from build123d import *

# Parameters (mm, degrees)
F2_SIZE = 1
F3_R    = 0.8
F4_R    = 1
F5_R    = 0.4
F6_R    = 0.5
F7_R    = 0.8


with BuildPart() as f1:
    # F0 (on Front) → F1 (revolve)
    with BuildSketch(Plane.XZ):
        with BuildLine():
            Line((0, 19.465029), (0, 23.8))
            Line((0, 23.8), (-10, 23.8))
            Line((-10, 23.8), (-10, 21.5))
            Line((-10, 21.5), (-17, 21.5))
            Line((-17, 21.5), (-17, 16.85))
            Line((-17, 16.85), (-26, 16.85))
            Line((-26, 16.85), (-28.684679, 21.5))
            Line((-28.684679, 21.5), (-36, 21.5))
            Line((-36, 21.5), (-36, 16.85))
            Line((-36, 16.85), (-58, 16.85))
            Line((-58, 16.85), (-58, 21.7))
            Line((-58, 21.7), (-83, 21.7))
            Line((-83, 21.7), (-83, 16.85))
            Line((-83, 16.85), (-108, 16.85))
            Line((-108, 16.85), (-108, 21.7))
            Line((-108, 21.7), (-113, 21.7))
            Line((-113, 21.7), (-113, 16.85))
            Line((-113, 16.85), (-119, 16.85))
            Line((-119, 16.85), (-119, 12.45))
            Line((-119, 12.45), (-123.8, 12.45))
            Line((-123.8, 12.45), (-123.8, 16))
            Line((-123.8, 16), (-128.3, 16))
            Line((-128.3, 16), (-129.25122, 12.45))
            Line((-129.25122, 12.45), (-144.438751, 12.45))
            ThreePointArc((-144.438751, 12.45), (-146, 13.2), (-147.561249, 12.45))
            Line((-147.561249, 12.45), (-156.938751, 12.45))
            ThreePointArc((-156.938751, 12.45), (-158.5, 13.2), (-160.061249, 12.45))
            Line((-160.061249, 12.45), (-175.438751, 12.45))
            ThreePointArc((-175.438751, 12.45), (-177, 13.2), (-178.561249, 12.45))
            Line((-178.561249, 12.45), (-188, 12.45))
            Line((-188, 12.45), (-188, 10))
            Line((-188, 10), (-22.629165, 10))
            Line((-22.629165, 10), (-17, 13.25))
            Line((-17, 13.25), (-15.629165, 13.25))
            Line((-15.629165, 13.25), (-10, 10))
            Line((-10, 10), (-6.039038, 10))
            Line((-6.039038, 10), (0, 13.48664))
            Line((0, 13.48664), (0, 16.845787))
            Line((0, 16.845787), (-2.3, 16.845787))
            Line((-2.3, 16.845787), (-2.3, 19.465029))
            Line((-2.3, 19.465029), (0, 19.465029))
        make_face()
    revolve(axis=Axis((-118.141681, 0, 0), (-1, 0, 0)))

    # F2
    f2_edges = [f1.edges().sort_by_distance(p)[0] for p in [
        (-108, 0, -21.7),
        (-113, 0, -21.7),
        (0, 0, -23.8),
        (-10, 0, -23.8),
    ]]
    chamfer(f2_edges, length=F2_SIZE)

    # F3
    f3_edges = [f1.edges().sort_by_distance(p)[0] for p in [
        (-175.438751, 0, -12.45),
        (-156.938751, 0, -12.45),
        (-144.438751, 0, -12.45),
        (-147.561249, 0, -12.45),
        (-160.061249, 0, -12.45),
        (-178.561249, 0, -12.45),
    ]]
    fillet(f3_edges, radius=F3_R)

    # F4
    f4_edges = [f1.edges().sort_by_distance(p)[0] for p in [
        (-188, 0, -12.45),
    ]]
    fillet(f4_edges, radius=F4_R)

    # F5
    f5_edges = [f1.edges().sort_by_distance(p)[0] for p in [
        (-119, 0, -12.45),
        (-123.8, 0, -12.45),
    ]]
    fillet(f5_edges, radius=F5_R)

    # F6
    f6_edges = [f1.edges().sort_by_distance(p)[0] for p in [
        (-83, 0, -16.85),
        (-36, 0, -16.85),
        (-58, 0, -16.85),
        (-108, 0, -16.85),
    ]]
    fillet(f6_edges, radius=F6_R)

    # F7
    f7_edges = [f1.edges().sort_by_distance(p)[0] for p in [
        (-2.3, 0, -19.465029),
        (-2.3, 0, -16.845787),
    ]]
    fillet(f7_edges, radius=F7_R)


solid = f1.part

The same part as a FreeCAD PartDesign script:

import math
import FreeCAD as App
import Part
import Sketcher
from FreeCAD import Vector
Q = App.Units.Quantity


def edges_at(feature, points):
    """Names of the edges that pass closest to the given points."""
    edges = feature.Shape.Edges
    near = lambda p: min(range(len(edges)), key=lambda i: edges[i].distToShape(Part.Vertex(*p))[0])
    return sorted({f"Edge{near(p) + 1}" for p in points})

doc = App.newDocument("Part")
body = doc.addObject("PartDesign::Body", "Body")

# Sketch on XZ plane
sketch1 = body.newObject("Sketcher::SketchObject", "Sketch")
sketch1.AttachmentSupport = (doc.getObject("XZ_Plane"), [""])
sketch1.MapMode = "FlatFace"
sketch1.addGeometry(Part.LineSegment(Vector(0, 19.5, 0), Vector(0, 23.8, 0)), False)
sketch1.addGeometry(Part.LineSegment(Vector(0, 23.8, 0), Vector(-10, 23.8, 0)), False)
sketch1.addGeometry(Part.LineSegment(Vector(-10, 23.8, 0), Vector(-10, 21.5, 0)), False)
sketch1.addGeometry(Part.LineSegment(Vector(-10, 21.5, 0), Vector(-17, 21.5, 0)), False)
sketch1.addGeometry(Part.LineSegment(Vector(-17, 21.5, 0), Vector(-17, 16.9, 0)), False)
sketch1.addGeometry(Part.LineSegment(Vector(-17, 16.9, 0), Vector(-26, 16.9, 0)), False)
sketch1.addGeometry(Part.LineSegment(Vector(-26, 16.9, 0), Vector(-28.7, 21.5, 0)), False)
sketch1.addGeometry(Part.LineSegment(Vector(-28.7, 21.5, 0), Vector(-36, 21.5, 0)), False)
sketch1.addGeometry(Part.LineSegment(Vector(-36, 21.5, 0), Vector(-36, 16.9, 0)), False)
sketch1.addGeometry(Part.LineSegment(Vector(-36, 16.9, 0), Vector(-58, 16.9, 0)), False)
sketch1.addGeometry(Part.LineSegment(Vector(-58, 16.9, 0), Vector(-58, 21.7, 0)), False)
sketch1.addGeometry(Part.LineSegment(Vector(-58, 21.7, 0), Vector(-83, 21.7, 0)), False)
sketch1.addGeometry(Part.LineSegment(Vector(-83, 21.7, 0), Vector(-83, 16.9, 0)), False)
sketch1.addGeometry(Part.LineSegment(Vector(-83, 16.9, 0), Vector(-108, 16.9, 0)), False)
sketch1.addGeometry(Part.LineSegment(Vector(-108, 16.9, 0), Vector(-108, 21.7, 0)), False)
sketch1.addGeometry(Part.LineSegment(Vector(-108, 21.7, 0), Vector(-113, 21.7, 0)), False)
sketch1.addGeometry(Part.LineSegment(Vector(-113, 21.7, 0), Vector(-113, 16.9, 0)), False)
sketch1.addGeometry(Part.LineSegment(Vector(-113, 16.9, 0), Vector(-119, 16.9, 0)), False)
sketch1.addGeometry(Part.LineSegment(Vector(-119, 16.9, 0), Vector(-119, 12.4, 0)), False)
sketch1.addGeometry(Part.LineSegment(Vector(-119, 12.4, 0), Vector(-123.8, 12.4, 0)), False)
sketch1.addGeometry(Part.LineSegment(Vector(-123.8, 12.4, 0), Vector(-123.8, 16, 0)), False)
sketch1.addGeometry(Part.LineSegment(Vector(-123.8, 16, 0), Vector(-128.3, 16, 0)), False)
sketch1.addGeometry(Part.LineSegment(Vector(-128.3, 16, 0), Vector(-129.3, 12.4, 0)), False)
sketch1.addGeometry(Part.LineSegment(Vector(-129.3, 12.4, 0), Vector(-144.4, 12.4, 0)), False)
sketch1.addGeometry(Part.ArcOfCircle(Part.Circle(Vector(-146, 11.2, 0), Vector(0, 0, 1), 2), math.radians(39), math.radians(141)), False)
sketch1.addGeometry(Part.LineSegment(Vector(-147.6, 12.4, 0), Vector(-156.9, 12.4, 0)), False)
sketch1.addGeometry(Part.ArcOfCircle(Part.Circle(Vector(-158.5, 11.2, 0), Vector(0, 0, 1), 2), math.radians(39), math.radians(141)), False)
sketch1.addGeometry(Part.LineSegment(Vector(-160.1, 12.4, 0), Vector(-175.4, 12.4, 0)), False)
sketch1.addGeometry(Part.ArcOfCircle(Part.Circle(Vector(-177, 11.2, 0), Vector(0, 0, 1), 2), math.radians(39), math.radians(141)), False)
sketch1.addGeometry(Part.LineSegment(Vector(-178.6, 12.4, 0), Vector(-188, 12.4, 0)), False)
sketch1.addGeometry(Part.LineSegment(Vector(-188, 12.4, 0), Vector(-188, 10, 0)), False)
sketch1.addGeometry(Part.LineSegment(Vector(-188, 10, 0), Vector(-22.6, 10, 0)), False)
sketch1.addGeometry(Part.LineSegment(Vector(-22.6, 10, 0), Vector(-17, 13.2, 0)), False)
sketch1.addGeometry(Part.LineSegment(Vector(-17, 13.2, 0), Vector(-15.6, 13.2, 0)), False)
sketch1.addGeometry(Part.LineSegment(Vector(-15.6, 13.2, 0), Vector(-10, 10, 0)), False)
sketch1.addGeometry(Part.LineSegment(Vector(-10, 10, 0), Vector(-6, 10, 0)), False)
sketch1.addGeometry(Part.LineSegment(Vector(-6, 10, 0), Vector(0, 13.5, 0)), False)
sketch1.addGeometry(Part.LineSegment(Vector(0, 13.5, 0), Vector(0, 16.8, 0)), False)
sketch1.addGeometry(Part.LineSegment(Vector(0, 16.8, 0), Vector(-2.3, 16.8, 0)), False)
sketch1.addGeometry(Part.LineSegment(Vector(-2.3, 16.8, 0), Vector(-2.3, 19.5, 0)), False)
sketch1.addGeometry(Part.LineSegment(Vector(-2.3, 19.5, 0), Vector(0, 19.5, 0)), False)
sketch1.addConstraint(Sketcher.Constraint("Coincident", 0, 2, 1, 1))
sketch1.addConstraint(Sketcher.Constraint("Coincident", 1, 2, 2, 1))
sketch1.addConstraint(Sketcher.Constraint("Coincident", 2, 2, 3, 1))
sketch1.addConstraint(Sketcher.Constraint("Coincident", 3, 2, 4, 1))
sketch1.addConstraint(Sketcher.Constraint("Coincident", 4, 2, 5, 1))
sketch1.addConstraint(Sketcher.Constraint("Coincident", 5, 2, 6, 1))
sketch1.addConstraint(Sketcher.Constraint("Coincident", 6, 2, 7, 1))
sketch1.addConstraint(Sketcher.Constraint("Coincident", 7, 2, 8, 1))
sketch1.addConstraint(Sketcher.Constraint("Coincident", 8, 2, 9, 1))
sketch1.addConstraint(Sketcher.Constraint("Coincident", 9, 2, 10, 1))
sketch1.addConstraint(Sketcher.Constraint("Coincident", 10, 2, 11, 1))
sketch1.addConstraint(Sketcher.Constraint("Coincident", 11, 2, 12, 1))
sketch1.addConstraint(Sketcher.Constraint("Coincident", 12, 2, 13, 1))
sketch1.addConstraint(Sketcher.Constraint("Coincident", 13, 2, 14, 1))
sketch1.addConstraint(Sketcher.Constraint("Coincident", 14, 2, 15, 1))
sketch1.addConstraint(Sketcher.Constraint("Coincident", 15, 2, 16, 1))
sketch1.addConstraint(Sketcher.Constraint("Coincident", 16, 2, 17, 1))
sketch1.addConstraint(Sketcher.Constraint("Coincident", 17, 2, 18, 1))
sketch1.addConstraint(Sketcher.Constraint("Coincident", 18, 2, 19, 1))
sketch1.addConstraint(Sketcher.Constraint("Coincident", 19, 2, 20, 1))
sketch1.addConstraint(Sketcher.Constraint("Coincident", 20, 2, 21, 1))
sketch1.addConstraint(Sketcher.Constraint("Coincident", 21, 2, 22, 1))
sketch1.addConstraint(Sketcher.Constraint("Coincident", 22, 2, 23, 1))
sketch1.addConstraint(Sketcher.Constraint("Coincident", 23, 2, 24, 1))
sketch1.addConstraint(Sketcher.Constraint("Coincident", 24, 2, 25, 1))
sketch1.addConstraint(Sketcher.Constraint("Coincident", 25, 2, 26, 1))
sketch1.addConstraint(Sketcher.Constraint("Coincident", 26, 2, 27, 1))
sketch1.addConstraint(Sketcher.Constraint("Coincident", 27, 2, 28, 1))
sketch1.addConstraint(Sketcher.Constraint("Coincident", 28, 2, 29, 1))
sketch1.addConstraint(Sketcher.Constraint("Coincident", 29, 2, 30, 1))
sketch1.addConstraint(Sketcher.Constraint("Coincident", 30, 2, 31, 1))
sketch1.addConstraint(Sketcher.Constraint("Coincident", 31, 2, 32, 1))
sketch1.addConstraint(Sketcher.Constraint("Coincident", 32, 2, 33, 1))
sketch1.addConstraint(Sketcher.Constraint("Coincident", 33, 2, 34, 1))
sketch1.addConstraint(Sketcher.Constraint("Coincident", 34, 2, 35, 1))
sketch1.addConstraint(Sketcher.Constraint("Coincident", 35, 2, 36, 1))
sketch1.addConstraint(Sketcher.Constraint("Coincident", 36, 2, 37, 1))
sketch1.addConstraint(Sketcher.Constraint("Coincident", 37, 2, 38, 1))
sketch1.addConstraint(Sketcher.Constraint("Coincident", 38, 2, 39, 1))
sketch1.addConstraint(Sketcher.Constraint("Coincident", 39, 2, 40, 1))
sketch1.addConstraint(Sketcher.Constraint("Coincident", 40, 2, 0, 1))
sketch1.addConstraint(Sketcher.Constraint("Vertical", 0))
sketch1.addConstraint(Sketcher.Constraint("Horizontal", 1))
sketch1.addConstraint(Sketcher.Constraint("Vertical", 2))
sketch1.addConstraint(Sketcher.Constraint("Horizontal", 3))
sketch1.addConstraint(Sketcher.Constraint("Vertical", 4))
sketch1.addConstraint(Sketcher.Constraint("Horizontal", 5))
sketch1.addConstraint(Sketcher.Constraint("Horizontal", 7))
sketch1.addConstraint(Sketcher.Constraint("Vertical", 8))
sketch1.addConstraint(Sketcher.Constraint("Horizontal", 9))
sketch1.addConstraint(Sketcher.Constraint("Vertical", 10))
sketch1.addConstraint(Sketcher.Constraint("Horizontal", 11))
sketch1.addConstraint(Sketcher.Constraint("Vertical", 12))
sketch1.addConstraint(Sketcher.Constraint("Horizontal", 13))
sketch1.addConstraint(Sketcher.Constraint("Vertical", 14))
sketch1.addConstraint(Sketcher.Constraint("Horizontal", 15))
sketch1.addConstraint(Sketcher.Constraint("Vertical", 16))
sketch1.addConstraint(Sketcher.Constraint("Horizontal", 17))
sketch1.addConstraint(Sketcher.Constraint("Vertical", 18))
sketch1.addConstraint(Sketcher.Constraint("Horizontal", 19))
sketch1.addConstraint(Sketcher.Constraint("Vertical", 20))
sketch1.addConstraint(Sketcher.Constraint("Horizontal", 21))
sketch1.addConstraint(Sketcher.Constraint("Horizontal", 23))
sketch1.addConstraint(Sketcher.Constraint("Horizontal", 25))
sketch1.addConstraint(Sketcher.Constraint("Horizontal", 27))
sketch1.addConstraint(Sketcher.Constraint("Horizontal", 29))
sketch1.addConstraint(Sketcher.Constraint("Vertical", 30))
sketch1.addConstraint(Sketcher.Constraint("Horizontal", 31))
sketch1.addConstraint(Sketcher.Constraint("Horizontal", 33))
sketch1.addConstraint(Sketcher.Constraint("Horizontal", 35))
sketch1.addConstraint(Sketcher.Constraint("Vertical", 37))
sketch1.addConstraint(Sketcher.Constraint("Horizontal", 38))
sketch1.addConstraint(Sketcher.Constraint("Vertical", 39))
sketch1.addConstraint(Sketcher.Constraint("Horizontal", 40))
sketch1.addConstraint(Sketcher.Constraint("Equal", 24, 26))
sketch1.addConstraint(Sketcher.Constraint("Equal", 26, 28))
sketch1.addConstraint(Sketcher.Constraint("PointOnObject", 0, 2, -2))
sketch1.addConstraint(Sketcher.Constraint("PointOnObject", 36, 2, -2))
sketch1.addConstraint(Sketcher.Constraint("Perpendicular", 6, 32))
sketch1.addConstraint(Sketcher.Constraint("Parallel", 32, 36))
sketch1.addConstraint(Sketcher.Constraint("Horizontal", 24, 3, 26, 3))
sketch1.addConstraint(Sketcher.Constraint("Horizontal", 26, 3, 28, 3))
sketch1.addConstraint(Sketcher.Constraint("Horizontal", 3, 2, 6, 2))
sketch1.addConstraint(Sketcher.Constraint("Horizontal", 5, 2, 8, 2))
sketch1.addConstraint(Sketcher.Constraint("Horizontal", 9, 2, 12, 2))
sketch1.addConstraint(Sketcher.Constraint("Horizontal", 11, 2, 14, 2))
sketch1.addConstraint(Sketcher.Constraint("Horizontal", 13, 2, 16, 2))
sketch1.addConstraint(Sketcher.Constraint("Horizontal", 19, 2, 22, 2))
sketch1.addConstraint(Sketcher.Constraint("Horizontal", 23, 2, 24, 2))
sketch1.addConstraint(Sketcher.Constraint("Horizontal", 25, 2, 26, 2))
sketch1.addConstraint(Sketcher.Constraint("Horizontal", 27, 2, 28, 2))
sketch1.addConstraint(Sketcher.Constraint("Horizontal", 31, 2, 34, 2))
sketch1.addConstraint(Sketcher.Constraint("Vertical", 4, 2, 32, 2))
sketch1.addConstraint(Sketcher.Constraint("Vertical", 2, 2, 34, 2))
sketch1.addConstraint(Sketcher.Constraint("Equal", 11, 13))
sketch1.addConstraint(Sketcher.Constraint("Equal", 40, 2))
sketch1.addConstraint(Sketcher.Constraint("Equal", 32, 34))
sketch1.addConstraint(Sketcher.Constraint("Radius", 24, 1.999999))
sketch1.addConstraint(Sketcher.Constraint("DistanceX", 1, 2, 1, 1, 10.0))
sketch1.addConstraint(Sketcher.Constraint("DistanceX", 3, 2, 3, 1, 7.0))
sketch1.addConstraint(Sketcher.Constraint("DistanceX", 5, 2, 5, 1, 9.0))
sketch1.addConstraint(Sketcher.Constraint("DistanceX", 9, 2, 9, 1, 22.0))
sketch1.addConstraint(Sketcher.Constraint("DistanceX", 11, 2, 11, 1, 25.0))
sketch1.addConstraint(Sketcher.Constraint("DistanceX", 15, 2, 15, 1, 5.0))
sketch1.addConstraint(Sketcher.Constraint("DistanceX", 17, 2, 17, 1, 6.0))
sketch1.addConstraint(Sketcher.Constraint("Angle", 6, Q("120.000002 deg")))
sketch1.addConstraint(Sketcher.Constraint("Angle", 22, Q("-105.000006 deg")))
sketch1.addConstraint(Sketcher.Constraint("DistanceX", 19, 2, 19, 1, 4.8))
sketch1.addConstraint(Sketcher.Constraint("DistanceX", 21, 2, 21, 1, 4.5))
sketch1.addConstraint(Sketcher.Constraint("DistanceX", 38, 2, 38, 1, 2.3))
sketch1.addConstraint(Sketcher.Constraint("DistanceY", 18, 2, 18, 1, 4.4))
sketch1.addConstraint(Sketcher.Constraint("DistanceX", 24, 3, -1, 1, 146.0))
sketch1.addConstraint(Sketcher.Constraint("DistanceX", 28, 3, -1, 1, 177.0))
sketch1.addConstraint(Sketcher.Constraint("DistanceX", 7, 2, -1, 1, 36.0))
sketch1.addConstraint(Sketcher.Constraint("DistanceY", -1, 1, 20, 2, 16.0))
sketch1.addConstraint(Sketcher.Constraint("DistanceX", 29, 2, -1, 1, 188.0))
sketch1.addConstraint(Sketcher.Constraint("DistanceY", -1, 1, 30, 2, 10.0))
sketch1.addConstraint(Sketcher.Constraint("Distance", 32, 6.5))
sketch1.addConstraint(Sketcher.Constraint("DistanceY", 4, 2, 4, 1, 4.65))
sketch1.addConstraint(Sketcher.Constraint("DistanceY", 10, 1, 10, 2, 4.85))
sketch1.addConstraint(Sketcher.Constraint("DistanceY", 20, 1, 20, 2, 3.55))
sketch1.addConstraint(Sketcher.Constraint("DistanceY", -1, 1, 24, 3, 11.200001))
sketch1.addConstraint(Sketcher.Constraint("DistanceX", 26, 3, -1, 1, 158.5))
sketch1.addConstraint(Sketcher.Constraint("DistanceY", 0, 1, 0, 2, 4.334971))
sketch1.addConstraint(Sketcher.Constraint("DistanceY", 39, 1, 39, 2, 2.619242))
sketch1.addConstraint(Sketcher.Constraint("Distance", 36, 6.97328))
revolution = body.newObject("PartDesign::Revolution", "Revolution")
revolution.Profile = sketch1
revolution.ReferenceAxis = (sketch1, ["H_Axis"])
revolution.Angle = 360
doc.recompute()

chamfer = body.newObject("PartDesign::Chamfer", "Chamfer")
chamfer.Base = (revolution, edges_at(revolution, [
    (-108, 0, -21.7),
    (-113, 0, -21.7),
    (0, 0, -23.8),
    (-10, 0, -23.8),
]))
chamfer.Size = 1
doc.recompute()

fillet = body.newObject("PartDesign::Fillet", "Fillet")
fillet.Base = (chamfer, edges_at(chamfer, [
    (-175.439, 0, -12.45),
    (-156.939, 0, -12.45),
    (-144.439, 0, -12.45),
    (-147.561, 0, -12.45),
    (-160.061, 0, -12.45),
    (-178.561, 0, -12.45),
]))
fillet.Radius = 0.8
doc.recompute()

fillet2 = body.newObject("PartDesign::Fillet", "Fillet001")
fillet2.Base = (fillet, edges_at(fillet, [(-188, 0, -12.45)]))
fillet2.Radius = 1
doc.recompute()

fillet3 = body.newObject("PartDesign::Fillet", "Fillet002")
fillet3.Base = (fillet2, edges_at(fillet2, [(-119, 0, -12.45), (-123.8, 0, -12.45)]))
fillet3.Radius = 0.4
doc.recompute()

fillet4 = body.newObject("PartDesign::Fillet", "Fillet003")
fillet4.Base = (fillet3, edges_at(fillet3, [
    (-83, 0, -16.85),
    (-36, 0, -16.85),
    (-58, 0, -16.85),
    (-108, 0, -16.85),
]))
fillet4.Radius = 0.5
doc.recompute()

fillet5 = body.newObject("PartDesign::Fillet", "Fillet004")
fillet5.Base = (fillet4, edges_at(fillet4, [(-2.3, 0, -19.465), (-2.3, 0, -16.846)]))
fillet5.Radius = 0.8

doc.recompute()
